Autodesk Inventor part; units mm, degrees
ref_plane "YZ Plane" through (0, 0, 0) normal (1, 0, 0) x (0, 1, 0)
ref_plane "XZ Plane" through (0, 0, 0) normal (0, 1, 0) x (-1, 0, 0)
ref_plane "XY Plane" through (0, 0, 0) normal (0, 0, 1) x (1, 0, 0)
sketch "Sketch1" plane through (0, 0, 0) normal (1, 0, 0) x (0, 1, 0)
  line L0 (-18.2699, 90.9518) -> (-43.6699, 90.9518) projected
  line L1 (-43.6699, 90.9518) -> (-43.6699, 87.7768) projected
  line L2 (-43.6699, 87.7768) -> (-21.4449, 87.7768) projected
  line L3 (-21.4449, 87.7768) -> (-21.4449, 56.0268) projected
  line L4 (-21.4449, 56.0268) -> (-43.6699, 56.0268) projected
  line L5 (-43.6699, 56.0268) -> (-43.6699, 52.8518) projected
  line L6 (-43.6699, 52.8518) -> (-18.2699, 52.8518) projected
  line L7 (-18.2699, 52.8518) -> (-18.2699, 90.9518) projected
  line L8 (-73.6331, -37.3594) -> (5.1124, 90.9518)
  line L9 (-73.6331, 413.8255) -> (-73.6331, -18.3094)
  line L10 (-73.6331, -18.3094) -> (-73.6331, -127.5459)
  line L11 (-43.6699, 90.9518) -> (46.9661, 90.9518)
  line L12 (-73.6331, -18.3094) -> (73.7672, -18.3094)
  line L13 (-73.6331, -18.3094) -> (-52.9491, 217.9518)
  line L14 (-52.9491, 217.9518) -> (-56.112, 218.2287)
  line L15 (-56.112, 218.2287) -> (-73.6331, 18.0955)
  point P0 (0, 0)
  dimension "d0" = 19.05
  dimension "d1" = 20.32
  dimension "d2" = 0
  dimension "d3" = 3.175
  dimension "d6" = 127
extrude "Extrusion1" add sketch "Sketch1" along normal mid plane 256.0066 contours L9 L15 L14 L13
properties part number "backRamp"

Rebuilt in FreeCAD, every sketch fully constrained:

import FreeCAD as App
import Part
import Sketcher
Q = App.Units.Quantity


def add_polygon(sketch, points):
    """Adds a closed chain of lines whose ends are joined by coincident constraints."""
    first, n = sketch.GeometryCount, len(points)
    for a, b in zip(points, points[1:] + points[:1]):
        sketch.addGeometry(Part.LineSegment(App.Vector(*a, 0), App.Vector(*b, 0)), False)
    for i in range(n):
        sketch.addConstraint(Sketcher.Constraint("Coincident", first + i, 2, first + (i + 1) % n, 1))

doc = App.newDocument("Part")
params = doc.addObject("Spreadsheet::Sheet", "Params")
for row, (alias, value) in enumerate([
    ("sketch1_length", "0.125 in"),
    ("pad1_length", "10.079 in"),
], start=1):
    params.set(f"A{row}", alias)
    params.set(f"B{row}", "=" + value)
    params.setAlias(f"B{row}", alias)

body = doc.addObject("PartDesign::Body", "Body")

# Sketch on YZ plane
sketch1 = doc.addObject("Sketcher::SketchObject", "Sketch")
body.addObject(sketch1)
sketch1.AttachmentSupport = (doc.YZ_Plane, [""])
sketch1.MapMode = "FlatFace"
add_polygon(sketch1, [(-73.6, 18.1), (-73.6, -18.3), (-52.9, 218), (-56.1, 218.2)])  # lines 0-3
sketch1.addConstraint([
    Sketcher.Constraint("Vertical", 0),
    Sketcher.Constraint("Perpendicular", 1, 2),
    Sketcher.Constraint("Perpendicular", 2, 3),
    Sketcher.Constraint("Distance", 2, Q("0.125 in")),
    Sketcher.Constraint("Distance", 1, Q("9.3372 in")),
    Sketcher.Constraint("Distance", 3, Q("7.9094 in")),
    Sketcher.Constraint("DistanceX", 1, 2, -1, 1, Q("2.0846 in")),
    Sketcher.Constraint("DistanceY", 0, 2, -1, 1, Q("18.3094 mm")),
])
sketch1.setExpression("Constraints[7]", "Params.sketch1_length")
pad1 = doc.addObject("PartDesign::Pad", "Pad")
body.addObject(pad1)
pad1.Profile = sketch1
pad1.setExpression("Length", "Params.pad1_length")
pad1.Midplane = True

doc.recompute()
